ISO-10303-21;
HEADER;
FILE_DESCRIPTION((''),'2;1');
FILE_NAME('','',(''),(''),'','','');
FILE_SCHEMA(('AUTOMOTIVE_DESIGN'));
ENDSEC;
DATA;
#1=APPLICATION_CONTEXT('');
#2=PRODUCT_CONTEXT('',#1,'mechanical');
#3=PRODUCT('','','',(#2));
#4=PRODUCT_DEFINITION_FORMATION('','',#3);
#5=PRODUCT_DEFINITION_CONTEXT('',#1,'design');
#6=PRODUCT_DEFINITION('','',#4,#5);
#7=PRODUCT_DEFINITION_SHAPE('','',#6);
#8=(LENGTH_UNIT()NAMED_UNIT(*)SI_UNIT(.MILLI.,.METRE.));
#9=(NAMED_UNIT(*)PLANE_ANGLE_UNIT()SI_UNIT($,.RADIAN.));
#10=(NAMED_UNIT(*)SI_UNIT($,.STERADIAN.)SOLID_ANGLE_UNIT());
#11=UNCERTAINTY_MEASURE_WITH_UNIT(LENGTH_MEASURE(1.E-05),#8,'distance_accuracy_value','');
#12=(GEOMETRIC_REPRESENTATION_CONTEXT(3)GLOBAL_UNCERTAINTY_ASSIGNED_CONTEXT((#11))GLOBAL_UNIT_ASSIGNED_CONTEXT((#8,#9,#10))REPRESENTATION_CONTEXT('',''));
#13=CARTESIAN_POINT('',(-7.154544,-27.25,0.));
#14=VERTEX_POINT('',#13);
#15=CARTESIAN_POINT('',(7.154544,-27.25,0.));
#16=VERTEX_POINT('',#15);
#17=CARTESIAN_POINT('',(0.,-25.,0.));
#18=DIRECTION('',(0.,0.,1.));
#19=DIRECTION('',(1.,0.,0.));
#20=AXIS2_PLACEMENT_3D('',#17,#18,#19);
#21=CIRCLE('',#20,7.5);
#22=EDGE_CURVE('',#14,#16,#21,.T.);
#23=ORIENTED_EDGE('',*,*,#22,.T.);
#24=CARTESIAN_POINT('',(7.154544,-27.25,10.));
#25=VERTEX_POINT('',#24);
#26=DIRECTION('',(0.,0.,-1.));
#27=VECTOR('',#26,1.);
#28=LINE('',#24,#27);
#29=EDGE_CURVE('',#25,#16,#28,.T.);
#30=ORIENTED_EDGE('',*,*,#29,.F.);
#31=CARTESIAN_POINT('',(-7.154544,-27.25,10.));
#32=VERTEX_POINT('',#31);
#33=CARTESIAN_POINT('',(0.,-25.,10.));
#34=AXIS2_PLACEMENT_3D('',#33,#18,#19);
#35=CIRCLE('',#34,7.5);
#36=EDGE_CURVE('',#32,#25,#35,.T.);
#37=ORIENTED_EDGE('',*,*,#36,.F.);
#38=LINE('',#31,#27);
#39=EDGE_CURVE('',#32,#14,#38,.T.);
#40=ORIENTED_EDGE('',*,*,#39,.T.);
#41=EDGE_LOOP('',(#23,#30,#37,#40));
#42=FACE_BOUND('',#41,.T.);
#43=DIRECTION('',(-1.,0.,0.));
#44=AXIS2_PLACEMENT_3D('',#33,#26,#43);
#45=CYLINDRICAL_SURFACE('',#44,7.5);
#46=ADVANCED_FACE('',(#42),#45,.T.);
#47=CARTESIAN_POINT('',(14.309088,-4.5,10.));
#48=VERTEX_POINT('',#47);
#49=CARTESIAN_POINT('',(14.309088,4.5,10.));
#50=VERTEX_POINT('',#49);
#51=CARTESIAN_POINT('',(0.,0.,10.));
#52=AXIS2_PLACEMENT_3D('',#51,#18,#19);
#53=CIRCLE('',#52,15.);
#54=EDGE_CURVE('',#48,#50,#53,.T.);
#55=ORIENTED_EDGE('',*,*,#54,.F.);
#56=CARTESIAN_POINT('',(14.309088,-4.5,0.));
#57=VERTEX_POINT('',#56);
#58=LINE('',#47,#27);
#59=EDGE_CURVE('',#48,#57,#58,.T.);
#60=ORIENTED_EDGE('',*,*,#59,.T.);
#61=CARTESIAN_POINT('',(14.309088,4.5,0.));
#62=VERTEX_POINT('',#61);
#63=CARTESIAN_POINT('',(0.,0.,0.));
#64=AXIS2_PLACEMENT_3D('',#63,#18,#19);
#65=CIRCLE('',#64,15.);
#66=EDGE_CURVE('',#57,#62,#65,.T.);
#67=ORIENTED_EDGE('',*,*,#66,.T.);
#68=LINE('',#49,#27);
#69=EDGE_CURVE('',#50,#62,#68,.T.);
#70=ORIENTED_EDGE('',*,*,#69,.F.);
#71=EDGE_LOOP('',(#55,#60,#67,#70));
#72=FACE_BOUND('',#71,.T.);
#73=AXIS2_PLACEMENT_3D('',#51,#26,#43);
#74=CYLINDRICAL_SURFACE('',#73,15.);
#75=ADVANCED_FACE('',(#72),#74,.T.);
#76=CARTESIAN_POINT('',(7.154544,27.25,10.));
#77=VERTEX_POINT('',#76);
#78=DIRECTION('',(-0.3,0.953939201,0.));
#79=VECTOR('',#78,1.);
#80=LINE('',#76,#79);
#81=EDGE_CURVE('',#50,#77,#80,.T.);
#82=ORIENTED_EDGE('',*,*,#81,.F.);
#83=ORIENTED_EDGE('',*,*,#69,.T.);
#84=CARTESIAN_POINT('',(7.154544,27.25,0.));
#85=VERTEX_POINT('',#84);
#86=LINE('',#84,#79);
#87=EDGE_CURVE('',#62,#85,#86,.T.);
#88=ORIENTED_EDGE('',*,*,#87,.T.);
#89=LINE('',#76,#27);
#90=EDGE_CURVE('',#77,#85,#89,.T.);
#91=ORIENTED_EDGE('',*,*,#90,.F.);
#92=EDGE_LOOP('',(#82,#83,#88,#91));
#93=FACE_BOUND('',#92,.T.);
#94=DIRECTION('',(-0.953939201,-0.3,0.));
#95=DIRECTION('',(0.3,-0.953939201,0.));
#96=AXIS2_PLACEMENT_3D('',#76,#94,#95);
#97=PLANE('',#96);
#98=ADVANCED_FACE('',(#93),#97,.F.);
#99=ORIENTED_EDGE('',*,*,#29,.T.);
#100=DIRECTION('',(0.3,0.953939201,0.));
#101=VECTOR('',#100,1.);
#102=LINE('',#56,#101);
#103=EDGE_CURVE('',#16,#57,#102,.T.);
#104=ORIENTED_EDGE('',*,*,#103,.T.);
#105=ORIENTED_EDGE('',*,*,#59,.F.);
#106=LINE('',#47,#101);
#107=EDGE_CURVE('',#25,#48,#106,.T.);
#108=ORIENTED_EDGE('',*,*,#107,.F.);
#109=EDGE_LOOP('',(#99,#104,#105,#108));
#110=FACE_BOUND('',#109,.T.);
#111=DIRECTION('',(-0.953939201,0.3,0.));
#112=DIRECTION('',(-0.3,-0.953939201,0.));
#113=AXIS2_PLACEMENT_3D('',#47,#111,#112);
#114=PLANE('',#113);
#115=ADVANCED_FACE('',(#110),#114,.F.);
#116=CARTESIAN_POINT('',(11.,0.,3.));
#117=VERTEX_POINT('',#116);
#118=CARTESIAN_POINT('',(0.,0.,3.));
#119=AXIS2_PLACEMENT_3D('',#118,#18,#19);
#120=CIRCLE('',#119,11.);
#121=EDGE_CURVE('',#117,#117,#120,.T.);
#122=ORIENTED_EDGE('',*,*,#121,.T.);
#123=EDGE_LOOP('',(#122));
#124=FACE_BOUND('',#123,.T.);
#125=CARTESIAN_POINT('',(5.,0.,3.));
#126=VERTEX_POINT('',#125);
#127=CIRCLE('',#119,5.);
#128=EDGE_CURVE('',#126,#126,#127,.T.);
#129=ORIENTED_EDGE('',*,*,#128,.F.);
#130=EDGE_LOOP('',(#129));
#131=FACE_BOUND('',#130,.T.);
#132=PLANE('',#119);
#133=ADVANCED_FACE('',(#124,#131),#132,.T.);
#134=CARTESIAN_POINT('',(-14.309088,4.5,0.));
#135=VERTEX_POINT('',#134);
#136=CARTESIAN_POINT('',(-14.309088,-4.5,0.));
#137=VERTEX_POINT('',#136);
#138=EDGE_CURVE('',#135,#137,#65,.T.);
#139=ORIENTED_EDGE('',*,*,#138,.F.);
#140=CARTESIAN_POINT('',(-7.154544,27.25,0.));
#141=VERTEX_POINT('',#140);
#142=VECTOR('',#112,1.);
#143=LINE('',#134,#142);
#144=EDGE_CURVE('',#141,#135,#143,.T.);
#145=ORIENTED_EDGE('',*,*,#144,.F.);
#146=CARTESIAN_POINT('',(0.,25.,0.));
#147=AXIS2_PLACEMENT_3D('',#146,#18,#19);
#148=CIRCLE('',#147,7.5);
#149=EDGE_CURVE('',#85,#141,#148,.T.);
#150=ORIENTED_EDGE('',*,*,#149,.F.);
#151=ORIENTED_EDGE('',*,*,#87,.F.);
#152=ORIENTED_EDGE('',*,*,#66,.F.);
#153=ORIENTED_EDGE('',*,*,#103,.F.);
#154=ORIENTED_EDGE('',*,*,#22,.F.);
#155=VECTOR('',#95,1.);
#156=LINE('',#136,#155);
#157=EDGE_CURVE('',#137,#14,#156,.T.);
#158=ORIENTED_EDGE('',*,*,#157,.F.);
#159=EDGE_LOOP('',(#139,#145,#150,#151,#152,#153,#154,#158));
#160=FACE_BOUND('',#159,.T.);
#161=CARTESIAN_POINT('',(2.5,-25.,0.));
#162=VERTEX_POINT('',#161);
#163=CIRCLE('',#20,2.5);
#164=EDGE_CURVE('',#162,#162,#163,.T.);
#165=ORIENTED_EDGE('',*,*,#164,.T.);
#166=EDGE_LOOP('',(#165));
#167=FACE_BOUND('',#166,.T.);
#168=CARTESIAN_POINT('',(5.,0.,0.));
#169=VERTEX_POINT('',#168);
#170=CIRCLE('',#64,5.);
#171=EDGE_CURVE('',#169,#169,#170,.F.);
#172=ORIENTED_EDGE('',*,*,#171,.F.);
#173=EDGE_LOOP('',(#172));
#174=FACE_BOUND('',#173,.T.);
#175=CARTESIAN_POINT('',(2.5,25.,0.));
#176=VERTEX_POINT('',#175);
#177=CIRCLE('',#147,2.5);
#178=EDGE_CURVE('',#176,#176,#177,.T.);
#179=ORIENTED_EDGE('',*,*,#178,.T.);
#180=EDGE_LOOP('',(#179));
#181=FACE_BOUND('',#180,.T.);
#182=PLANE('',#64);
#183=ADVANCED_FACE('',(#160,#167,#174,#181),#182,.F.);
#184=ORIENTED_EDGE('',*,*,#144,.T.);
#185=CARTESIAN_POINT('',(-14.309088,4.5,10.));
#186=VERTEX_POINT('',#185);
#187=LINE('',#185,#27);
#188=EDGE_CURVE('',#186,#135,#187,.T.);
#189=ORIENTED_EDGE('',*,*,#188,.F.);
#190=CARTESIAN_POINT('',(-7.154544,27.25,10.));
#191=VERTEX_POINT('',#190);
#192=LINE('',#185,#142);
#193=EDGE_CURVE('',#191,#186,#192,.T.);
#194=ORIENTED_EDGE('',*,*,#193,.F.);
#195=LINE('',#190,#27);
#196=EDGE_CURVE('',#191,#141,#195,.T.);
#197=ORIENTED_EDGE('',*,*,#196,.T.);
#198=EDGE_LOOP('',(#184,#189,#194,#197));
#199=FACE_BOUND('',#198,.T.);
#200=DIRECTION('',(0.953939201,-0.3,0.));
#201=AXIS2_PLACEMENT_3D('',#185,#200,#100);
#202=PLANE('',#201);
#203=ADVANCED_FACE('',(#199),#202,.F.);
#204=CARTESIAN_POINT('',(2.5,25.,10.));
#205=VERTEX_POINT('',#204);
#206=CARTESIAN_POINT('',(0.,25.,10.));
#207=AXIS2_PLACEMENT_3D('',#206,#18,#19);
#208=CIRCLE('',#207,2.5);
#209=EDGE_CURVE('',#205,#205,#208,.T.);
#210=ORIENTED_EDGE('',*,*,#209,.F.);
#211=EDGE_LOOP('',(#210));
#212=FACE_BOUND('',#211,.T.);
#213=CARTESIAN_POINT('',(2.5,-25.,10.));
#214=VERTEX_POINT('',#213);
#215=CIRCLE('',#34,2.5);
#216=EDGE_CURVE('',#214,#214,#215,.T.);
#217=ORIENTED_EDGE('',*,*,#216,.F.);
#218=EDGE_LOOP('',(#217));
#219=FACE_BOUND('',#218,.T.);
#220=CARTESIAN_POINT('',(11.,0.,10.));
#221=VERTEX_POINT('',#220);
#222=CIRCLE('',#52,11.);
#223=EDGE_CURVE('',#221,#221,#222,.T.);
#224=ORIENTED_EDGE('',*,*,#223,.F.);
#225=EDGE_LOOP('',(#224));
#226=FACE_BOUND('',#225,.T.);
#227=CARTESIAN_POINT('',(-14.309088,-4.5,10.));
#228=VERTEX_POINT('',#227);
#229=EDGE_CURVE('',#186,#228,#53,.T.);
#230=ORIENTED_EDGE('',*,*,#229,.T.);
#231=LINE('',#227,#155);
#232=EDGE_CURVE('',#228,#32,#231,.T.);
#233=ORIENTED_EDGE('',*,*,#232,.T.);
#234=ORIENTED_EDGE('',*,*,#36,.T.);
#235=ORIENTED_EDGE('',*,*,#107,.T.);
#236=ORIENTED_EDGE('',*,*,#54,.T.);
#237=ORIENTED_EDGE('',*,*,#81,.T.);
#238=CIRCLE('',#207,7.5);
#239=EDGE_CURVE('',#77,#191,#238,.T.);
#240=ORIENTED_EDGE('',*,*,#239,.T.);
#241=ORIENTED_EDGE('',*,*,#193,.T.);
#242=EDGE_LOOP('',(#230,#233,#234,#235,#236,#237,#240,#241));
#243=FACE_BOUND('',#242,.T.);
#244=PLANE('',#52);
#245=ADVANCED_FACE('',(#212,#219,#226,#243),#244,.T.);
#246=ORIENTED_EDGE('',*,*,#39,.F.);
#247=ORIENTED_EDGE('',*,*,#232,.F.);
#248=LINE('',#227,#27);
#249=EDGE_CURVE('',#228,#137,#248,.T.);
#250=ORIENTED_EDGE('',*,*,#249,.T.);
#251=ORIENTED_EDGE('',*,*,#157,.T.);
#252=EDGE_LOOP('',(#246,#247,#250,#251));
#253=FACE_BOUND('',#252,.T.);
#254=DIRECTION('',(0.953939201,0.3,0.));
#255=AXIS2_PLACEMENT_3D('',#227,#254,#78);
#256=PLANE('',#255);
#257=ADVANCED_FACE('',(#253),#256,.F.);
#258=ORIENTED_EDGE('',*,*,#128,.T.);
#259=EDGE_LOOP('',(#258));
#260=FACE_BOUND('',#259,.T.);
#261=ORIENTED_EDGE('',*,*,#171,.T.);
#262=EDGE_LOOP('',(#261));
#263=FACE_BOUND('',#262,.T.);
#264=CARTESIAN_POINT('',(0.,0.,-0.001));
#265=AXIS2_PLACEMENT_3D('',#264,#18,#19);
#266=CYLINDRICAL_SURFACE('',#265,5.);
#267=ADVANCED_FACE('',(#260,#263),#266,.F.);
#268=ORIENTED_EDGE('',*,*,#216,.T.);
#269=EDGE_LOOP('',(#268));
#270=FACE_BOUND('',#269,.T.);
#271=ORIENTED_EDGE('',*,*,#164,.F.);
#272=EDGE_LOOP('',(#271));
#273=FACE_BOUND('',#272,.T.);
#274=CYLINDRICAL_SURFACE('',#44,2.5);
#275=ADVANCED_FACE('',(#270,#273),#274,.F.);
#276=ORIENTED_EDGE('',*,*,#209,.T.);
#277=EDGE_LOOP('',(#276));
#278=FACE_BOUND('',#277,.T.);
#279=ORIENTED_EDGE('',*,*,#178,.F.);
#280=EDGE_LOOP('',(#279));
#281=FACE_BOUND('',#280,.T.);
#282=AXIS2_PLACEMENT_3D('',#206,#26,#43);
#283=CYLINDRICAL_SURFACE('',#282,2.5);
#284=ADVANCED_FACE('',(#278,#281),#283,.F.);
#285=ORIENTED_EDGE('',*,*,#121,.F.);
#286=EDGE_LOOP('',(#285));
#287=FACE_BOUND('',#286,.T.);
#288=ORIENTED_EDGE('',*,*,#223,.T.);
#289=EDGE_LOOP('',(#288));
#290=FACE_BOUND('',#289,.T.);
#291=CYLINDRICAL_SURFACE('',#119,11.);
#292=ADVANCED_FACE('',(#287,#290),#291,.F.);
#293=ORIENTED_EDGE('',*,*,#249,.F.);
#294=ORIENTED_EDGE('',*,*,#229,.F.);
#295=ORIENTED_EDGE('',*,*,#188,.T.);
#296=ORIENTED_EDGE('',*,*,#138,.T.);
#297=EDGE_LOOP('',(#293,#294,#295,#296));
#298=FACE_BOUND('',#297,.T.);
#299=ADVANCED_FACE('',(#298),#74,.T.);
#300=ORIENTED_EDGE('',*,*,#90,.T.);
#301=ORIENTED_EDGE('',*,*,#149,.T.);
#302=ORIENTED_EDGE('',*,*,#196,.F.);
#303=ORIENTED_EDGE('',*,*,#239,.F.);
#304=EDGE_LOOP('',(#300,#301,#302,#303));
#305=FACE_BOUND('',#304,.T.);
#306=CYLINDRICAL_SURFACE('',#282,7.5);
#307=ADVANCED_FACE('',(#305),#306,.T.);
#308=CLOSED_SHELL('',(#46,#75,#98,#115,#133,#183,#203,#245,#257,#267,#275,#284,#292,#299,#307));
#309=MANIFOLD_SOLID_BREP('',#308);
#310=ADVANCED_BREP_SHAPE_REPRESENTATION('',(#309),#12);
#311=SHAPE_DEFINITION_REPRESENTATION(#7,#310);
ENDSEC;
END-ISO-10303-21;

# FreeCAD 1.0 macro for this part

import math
import FreeCAD as App
import Part
import Sketcher

V = App.Vector
Q = App.Units.Quantity

doc = App.newDocument("Part")
params = doc.addObject("Spreadsheet::Sheet", "Params")
for row, (alias, value) in enumerate([
    ("sketch1_diameter", "5 mm"),
    ("sketch1_radius", "15 mm"),
    ("sketch1_radius2", "7.5 mm"),
    ("pad1_length", "10 mm"),
    ("sketch2_diameter", "22 mm"),
    ("pocket1_length", "7 mm"),
    ("sketch3_diameter", "10 mm"),
], start=1):
    params.set(f"A{row}", alias)
    params.set(f"B{row}", "=" + value)
    params.setAlias(f"B{row}", alias)

body = doc.addObject("PartDesign::Body", "Body")

# Sketch on XY plane
sketch1 = body.newObject("Sketcher::SketchObject", "Sketch")
sketch1.AttachmentSupport = (doc.getObject("XY_Plane"), [""])
sketch1.MapMode = "FlatFace"
sketch1.addGeometry([
    Part.LineSegment(V(-7.2, 27.2, 0), V(-14.3, 4.5, 0)),  # 0
    Part.ArcOfCircle(Part.Circle(V(0, 0, 0), V(0, 0, 1), 15), math.radians(163), math.radians(197)),  # 1
    Part.LineSegment(V(-14.3, -4.5, 0), V(-7.2, -27.2, 0)),  # 2
    Part.ArcOfCircle(Part.Circle(V(0, -25, 0), V(0, 0, 1), 7.5), math.radians(-163), math.radians(-17)),  # 3
    Part.LineSegment(V(7.2, -27.2, 0), V(14.3, -4.5, 0)),  # 4
    Part.ArcOfCircle(Part.Circle(V(0, 0, 0), V(0, 0, 1), 15), math.radians(-17), math.radians(17)),  # 5
    Part.LineSegment(V(14.3, 4.5, 0), V(7.2, 27.2, 0)),  # 6
    Part.ArcOfCircle(Part.Circle(V(0, 25, 0), V(0, 0, 1), 7.5), math.radians(17), math.radians(163)),  # 7
    Part.Circle(V(0, -25, 0), V(0, 0, 1), 2.5),  # 8
    Part.Circle(V(0, 25, 0), V(0, 0, 1), 2.5),  # 9
], False)
sketch1.addConstraint([
    Sketcher.Constraint("Tangent", 0, 2, 1, 1),
    Sketcher.Constraint("Tangent", 1, 2, 2, 1),
    Sketcher.Constraint("Tangent", 2, 2, 3, 1),
    Sketcher.Constraint("Tangent", 3, 2, 4, 1),
    Sketcher.Constraint("Tangent", 4, 2, 5, 1),
    Sketcher.Constraint("Tangent", 5, 2, 6, 1),
    Sketcher.Constraint("Tangent", 6, 2, 7, 1),
    Sketcher.Constraint("Tangent", 7, 2, 0, 1),
    Sketcher.Constraint("Coincident", 1, 3, -1, 1),
    Sketcher.Constraint("Coincident", 5, 3, -1, 1),
    Sketcher.Constraint("Coincident", 8, 3, 3, 3),
    Sketcher.Constraint("Coincident", 9, 3, 7, 3),
    Sketcher.Constraint("Equal", 1, 5),
    Sketcher.Constraint("Equal", 3, 7),
    Sketcher.Constraint("Equal", 8, 9),
    Sketcher.Constraint("Symmetric", 3, 3, 7, 3, -1, 1),
    Sketcher.Constraint("PointOnObject", 3, 3, -2),
    Sketcher.Constraint("Diameter", 8, Q("5 mm")),
    Sketcher.Constraint("Radius", 1, Q("15 mm")),
    Sketcher.Constraint("Radius", 3, Q("7.5 mm")),
    Sketcher.Constraint("DistanceY", 3, 3, -1, 1, Q("25 mm")),
])
sketch1.setExpression("Constraints[17]", "Params.sketch1_diameter")
sketch1.setExpression("Constraints[18]", "Params.sketch1_radius")
sketch1.setExpression("Constraints[19]", "Params.sketch1_radius2")
pad1 = body.newObject("PartDesign::Pad", "Pad")
pad1.Profile = sketch1
pad1.setExpression("Length", "Params.pad1_length")

# Sketch on XY plane
sketch2 = body.newObject("Sketcher::SketchObject", "Sketch001")
sketch2.AttachmentSupport = (doc.getObject("XY_Plane"), [""])
sketch2.MapMode = "FlatFace"
sketch2.AttachmentOffset = App.Placement(V(0, 0, 10), App.Rotation())
sketch2.addGeometry(Part.Circle(V(0, 0, 0), V(0, 0, 1), 11), False)
sketch2.addConstraint([
    Sketcher.Constraint("Coincident", 0, 3, -1, 1),
    Sketcher.Constraint("Diameter", 0, Q("22 mm")),
])
sketch2.setExpression("Constraints[1]", "Params.sketch2_diameter")
pocket1 = body.newObject("PartDesign::Pocket", "Pocket")
pocket1.Profile = sketch2
pocket1.setExpression("Length", "Params.pocket1_length")

# Sketch on XY plane
sketch3 = body.newObject("Sketcher::SketchObject", "Sketch002")
sketch3.AttachmentSupport = (doc.getObject("XY_Plane"), [""])
sketch3.MapMode = "FlatFace"
sketch3.AttachmentOffset = App.Placement(V(0, 0, 3), App.Rotation())
sketch3.addGeometry(Part.Circle(V(0, 0, 0), V(0, 0, 1), 5), False)
sketch3.addConstraint([
    Sketcher.Constraint("Coincident", 0, 3, -1, 1),
    Sketcher.Constraint("Diameter", 0, Q("10 mm")),
])
sketch3.setExpression("Constraints[1]", "Params.sketch3_diameter")
pocket2 = body.newObject("PartDesign::Pocket", "Pocket001")
pocket2.Profile = sketch3
pocket2.Type = "UpToFirst"

doc.recompute()
